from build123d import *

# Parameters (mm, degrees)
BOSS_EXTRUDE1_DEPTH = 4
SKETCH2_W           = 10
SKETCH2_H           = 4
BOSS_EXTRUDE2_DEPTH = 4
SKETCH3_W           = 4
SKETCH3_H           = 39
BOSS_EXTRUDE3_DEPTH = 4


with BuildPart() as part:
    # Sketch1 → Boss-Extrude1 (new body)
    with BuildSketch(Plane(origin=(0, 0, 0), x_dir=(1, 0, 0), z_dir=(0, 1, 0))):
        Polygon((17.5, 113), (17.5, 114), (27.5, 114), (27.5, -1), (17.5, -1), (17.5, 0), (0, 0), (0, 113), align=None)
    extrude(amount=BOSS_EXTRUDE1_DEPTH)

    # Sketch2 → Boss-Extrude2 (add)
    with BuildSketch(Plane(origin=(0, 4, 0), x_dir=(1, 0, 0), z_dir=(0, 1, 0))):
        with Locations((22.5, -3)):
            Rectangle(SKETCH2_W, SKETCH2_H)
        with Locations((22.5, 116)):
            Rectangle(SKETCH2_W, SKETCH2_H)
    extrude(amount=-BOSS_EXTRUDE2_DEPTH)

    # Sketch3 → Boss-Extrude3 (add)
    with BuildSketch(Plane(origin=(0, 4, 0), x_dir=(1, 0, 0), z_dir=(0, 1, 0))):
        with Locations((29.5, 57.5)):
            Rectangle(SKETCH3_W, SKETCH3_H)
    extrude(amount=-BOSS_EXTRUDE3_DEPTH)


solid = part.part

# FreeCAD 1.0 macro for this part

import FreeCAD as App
import Part
import Sketcher
Q = App.Units.Quantity

doc = App.newDocument("Part")
body = doc.addObject("PartDesign::Body", "Body")

# Sketch on XZ plane
sketch1 = body.newObject("Sketcher::SketchObject", "Sketch")
sketch1.AttachmentSupport = (doc.getObject("XZ_Plane"), [""])
sketch1.MapMode = "FlatFace"
sketch1.addGeometry([
    Part.LineSegment(App.Vector(17.5, -114, 0), App.Vector(17.5, -113, 0)),  # 0
    Part.LineSegment(App.Vector(17.5, -113, 0), App.Vector(0, -113, 0)),  # 1
    Part.LineSegment(App.Vector(0, -113, 0), App.Vector(0, 0, 0)),  # 2
    Part.LineSegment(App.Vector(0, 0, 0), App.Vector(17.5, 0, 0)),  # 3
    Part.LineSegment(App.Vector(17.5, 0, 0), App.Vector(17.5, 1, 0)),  # 4
    Part.LineSegment(App.Vector(17.5, 1, 0), App.Vector(27.5, 1, 0)),  # 5
    Part.LineSegment(App.Vector(27.5, 1, 0), App.Vector(27.5, -114, 0)),  # 6
    Part.LineSegment(App.Vector(27.5, -114, 0), App.Vector(17.5, -114, 0)),  # 7
], False)
sketch1.addConstraint([
    Sketcher.Constraint("Coincident", 0, 2, 1, 1),
    Sketcher.Constraint("Coincident", 1, 2, 2, 1),
    Sketcher.Constraint("Coincident", 2, 2, 3, 1),
    Sketcher.Constraint("Coincident", 3, 2, 4, 1),
    Sketcher.Constraint("Coincident", 4, 2, 5, 1),
    Sketcher.Constraint("Coincident", 5, 2, 6, 1),
    Sketcher.Constraint("Coincident", 6, 2, 7, 1),
    Sketcher.Constraint("Coincident", 7, 2, 0, 1),
    Sketcher.Constraint("Vertical", 0),
    Sketcher.Constraint("Horizontal", 1),
    Sketcher.Constraint("Vertical", 2),
    Sketcher.Constraint("Horizontal", 3),
    Sketcher.Constraint("Vertical", 4),
    Sketcher.Constraint("Horizontal", 5),
    Sketcher.Constraint("Vertical", 6),
    Sketcher.Constraint("Horizontal", 7),
    Sketcher.Constraint("Coincident", 2, 2, -1, 1),
    Sketcher.Constraint("Vertical", 0, 2, 3, 2),
    Sketcher.Constraint("Equal", 0, 4),
    Sketcher.Constraint("DistanceX", 5, 1, 5, 2, Q("10 mm")),
    Sketcher.Constraint("DistanceY", 0, 1, 0, 2, Q("1 mm")),
    Sketcher.Constraint("DistanceY", 2, 1, 2, 2, Q("113 mm")),
    Sketcher.Constraint("DistanceX", 1, 2, 1, 1, Q("17.5 mm")),
])
pad1 = body.newObject("PartDesign::Pad", "Pad")
pad1.Profile = sketch1
pad1.Length = 4
pad1.Reversed = True

# Sketch on XZ plane
sketch2 = body.newObject("Sketcher::SketchObject", "Sketch001")
sketch2.AttachmentSupport = (doc.getObject("XZ_Plane"), [""])
sketch2.MapMode = "FlatFace"
sketch2.AttachmentOffset = App.Placement(App.Vector(0, 0, -4), App.Rotation())
sketch2.addGeometry([
    Part.LineSegment(App.Vector(17.5, 1, 0), App.Vector(17.5, 5, 0)),  # 0
    Part.LineSegment(App.Vector(17.5, 5, 0), App.Vector(27.5, 5, 0)),  # 1
    Part.LineSegment(App.Vector(27.5, 5, 0), App.Vector(27.5, 1, 0)),  # 2
    Part.LineSegment(App.Vector(27.5, 1, 0), App.Vector(17.5, 1, 0)),  # 3
    Part.LineSegment(App.Vector(17.5, -118, 0), App.Vector(17.5, -114, 0)),  # 4
    Part.LineSegment(App.Vector(17.5, -114, 0), App.Vector(27.5, -114, 0)),  # 5
    Part.LineSegment(App.Vector(27.5, -114, 0), App.Vector(27.5, -118, 0)),  # 6
    Part.LineSegment(App.Vector(27.5, -118, 0), App.Vector(17.5, -118, 0)),  # 7
], False)
sketch2.addConstraint([
    Sketcher.Constraint("Coincident", 0, 2, 1, 1),
    Sketcher.Constraint("Coincident", 1, 2, 2, 1),
    Sketcher.Constraint("Coincident", 2, 2, 3, 1),
    Sketcher.Constraint("Coincident", 3, 2, 0, 1),
    Sketcher.Constraint("Coincident", 4, 2, 5, 1),
    Sketcher.Constraint("Coincident", 5, 2, 6, 1),
    Sketcher.Constraint("Coincident", 6, 2, 7, 1),
    Sketcher.Constraint("Coincident", 7, 2, 4, 1),
    Sketcher.Constraint("Vertical", 0),
    Sketcher.Constraint("Horizontal", 1),
    Sketcher.Constraint("Vertical", 2),
    Sketcher.Constraint("Horizontal", 3),
    Sketcher.Constraint("Vertical", 4),
    Sketcher.Constraint("Horizontal", 5),
    Sketcher.Constraint("Vertical", 6),
    Sketcher.Constraint("Horizontal", 7),
    Sketcher.Constraint("Vertical", 3, 2, 4, 2),
    Sketcher.Constraint("Vertical", 2, 2, 5, 2),
    Sketcher.Constraint("Equal", 2, 4),
    Sketcher.Constraint("DistanceX", 1, 1, 1, 2, Q("10 mm")),
    Sketcher.Constraint("DistanceY", 0, 1, 0, 2, Q("4 mm")),
    Sketcher.Constraint("DistanceY", -1, 1, 0, 2, Q("5 mm")),
    Sketcher.Constraint("DistanceY", 4, 2, -1, 1, Q("114 mm")),
    Sketcher.Constraint("DistanceX", -1, 1, 0, 2, Q("17.5 mm")),
])
pad2 = body.newObject("PartDesign::Pad", "Pad001")
pad2.Profile = sketch2
pad2.Length = 4

# Sketch on XZ plane
sketch3 = body.newObject("Sketcher::SketchObject", "Sketch002")
sketch3.AttachmentSupport = (doc.getObject("XZ_Plane"), [""])
sketch3.MapMode = "FlatFace"
sketch3.AttachmentOffset = App.Placement(App.Vector(0, 0, -4), App.Rotation())
sketch3.addGeometry([
    Part.LineSegment(App.Vector(27.5, -77, 0), App.Vector(27.5, -38, 0)),
    Part.LineSegment(App.Vector(27.5, -38, 0), App.Vector(31.5, -38, 0)),
    Part.LineSegment(App.Vector(31.5, -38, 0), App.Vector(31.5, -77, 0)),
    Part.LineSegment(App.Vector(31.5, -77, 0), App.Vector(27.5, -77, 0)),
], False)
sketch3.addConstraint([
    Sketcher.Constraint("Coincident", 0, 2, 1, 1),
    Sketcher.Constraint("Coincident", 1, 2, 2, 1),
    Sketcher.Constraint("Coincident", 2, 2, 3, 1),
    Sketcher.Constraint("Coincident", 3, 2, 0, 1),
    Sketcher.Constraint("Vertical", 0),
    Sketcher.Constraint("Horizontal", 1),
    Sketcher.Constraint("Vertical", 2),
    Sketcher.Constraint("Horizontal", 3),
    Sketcher.Constraint("DistanceX", 1, 1, 1, 2, Q("4 mm")),
    Sketcher.Constraint("DistanceY", 0, 1, 0, 2, Q("39 mm")),
    Sketcher.Constraint("DistanceY", 0, 2, -1, 1, Q("38 mm")),
    Sketcher.Constraint("DistanceX", -1, 1, 0, 2, Q("27.5 mm")),
])
pad3 = body.newObject("PartDesign::Pad", "Pad002")
pad3.Profile = sketch3
pad3.Length = 4

doc.recompute()
